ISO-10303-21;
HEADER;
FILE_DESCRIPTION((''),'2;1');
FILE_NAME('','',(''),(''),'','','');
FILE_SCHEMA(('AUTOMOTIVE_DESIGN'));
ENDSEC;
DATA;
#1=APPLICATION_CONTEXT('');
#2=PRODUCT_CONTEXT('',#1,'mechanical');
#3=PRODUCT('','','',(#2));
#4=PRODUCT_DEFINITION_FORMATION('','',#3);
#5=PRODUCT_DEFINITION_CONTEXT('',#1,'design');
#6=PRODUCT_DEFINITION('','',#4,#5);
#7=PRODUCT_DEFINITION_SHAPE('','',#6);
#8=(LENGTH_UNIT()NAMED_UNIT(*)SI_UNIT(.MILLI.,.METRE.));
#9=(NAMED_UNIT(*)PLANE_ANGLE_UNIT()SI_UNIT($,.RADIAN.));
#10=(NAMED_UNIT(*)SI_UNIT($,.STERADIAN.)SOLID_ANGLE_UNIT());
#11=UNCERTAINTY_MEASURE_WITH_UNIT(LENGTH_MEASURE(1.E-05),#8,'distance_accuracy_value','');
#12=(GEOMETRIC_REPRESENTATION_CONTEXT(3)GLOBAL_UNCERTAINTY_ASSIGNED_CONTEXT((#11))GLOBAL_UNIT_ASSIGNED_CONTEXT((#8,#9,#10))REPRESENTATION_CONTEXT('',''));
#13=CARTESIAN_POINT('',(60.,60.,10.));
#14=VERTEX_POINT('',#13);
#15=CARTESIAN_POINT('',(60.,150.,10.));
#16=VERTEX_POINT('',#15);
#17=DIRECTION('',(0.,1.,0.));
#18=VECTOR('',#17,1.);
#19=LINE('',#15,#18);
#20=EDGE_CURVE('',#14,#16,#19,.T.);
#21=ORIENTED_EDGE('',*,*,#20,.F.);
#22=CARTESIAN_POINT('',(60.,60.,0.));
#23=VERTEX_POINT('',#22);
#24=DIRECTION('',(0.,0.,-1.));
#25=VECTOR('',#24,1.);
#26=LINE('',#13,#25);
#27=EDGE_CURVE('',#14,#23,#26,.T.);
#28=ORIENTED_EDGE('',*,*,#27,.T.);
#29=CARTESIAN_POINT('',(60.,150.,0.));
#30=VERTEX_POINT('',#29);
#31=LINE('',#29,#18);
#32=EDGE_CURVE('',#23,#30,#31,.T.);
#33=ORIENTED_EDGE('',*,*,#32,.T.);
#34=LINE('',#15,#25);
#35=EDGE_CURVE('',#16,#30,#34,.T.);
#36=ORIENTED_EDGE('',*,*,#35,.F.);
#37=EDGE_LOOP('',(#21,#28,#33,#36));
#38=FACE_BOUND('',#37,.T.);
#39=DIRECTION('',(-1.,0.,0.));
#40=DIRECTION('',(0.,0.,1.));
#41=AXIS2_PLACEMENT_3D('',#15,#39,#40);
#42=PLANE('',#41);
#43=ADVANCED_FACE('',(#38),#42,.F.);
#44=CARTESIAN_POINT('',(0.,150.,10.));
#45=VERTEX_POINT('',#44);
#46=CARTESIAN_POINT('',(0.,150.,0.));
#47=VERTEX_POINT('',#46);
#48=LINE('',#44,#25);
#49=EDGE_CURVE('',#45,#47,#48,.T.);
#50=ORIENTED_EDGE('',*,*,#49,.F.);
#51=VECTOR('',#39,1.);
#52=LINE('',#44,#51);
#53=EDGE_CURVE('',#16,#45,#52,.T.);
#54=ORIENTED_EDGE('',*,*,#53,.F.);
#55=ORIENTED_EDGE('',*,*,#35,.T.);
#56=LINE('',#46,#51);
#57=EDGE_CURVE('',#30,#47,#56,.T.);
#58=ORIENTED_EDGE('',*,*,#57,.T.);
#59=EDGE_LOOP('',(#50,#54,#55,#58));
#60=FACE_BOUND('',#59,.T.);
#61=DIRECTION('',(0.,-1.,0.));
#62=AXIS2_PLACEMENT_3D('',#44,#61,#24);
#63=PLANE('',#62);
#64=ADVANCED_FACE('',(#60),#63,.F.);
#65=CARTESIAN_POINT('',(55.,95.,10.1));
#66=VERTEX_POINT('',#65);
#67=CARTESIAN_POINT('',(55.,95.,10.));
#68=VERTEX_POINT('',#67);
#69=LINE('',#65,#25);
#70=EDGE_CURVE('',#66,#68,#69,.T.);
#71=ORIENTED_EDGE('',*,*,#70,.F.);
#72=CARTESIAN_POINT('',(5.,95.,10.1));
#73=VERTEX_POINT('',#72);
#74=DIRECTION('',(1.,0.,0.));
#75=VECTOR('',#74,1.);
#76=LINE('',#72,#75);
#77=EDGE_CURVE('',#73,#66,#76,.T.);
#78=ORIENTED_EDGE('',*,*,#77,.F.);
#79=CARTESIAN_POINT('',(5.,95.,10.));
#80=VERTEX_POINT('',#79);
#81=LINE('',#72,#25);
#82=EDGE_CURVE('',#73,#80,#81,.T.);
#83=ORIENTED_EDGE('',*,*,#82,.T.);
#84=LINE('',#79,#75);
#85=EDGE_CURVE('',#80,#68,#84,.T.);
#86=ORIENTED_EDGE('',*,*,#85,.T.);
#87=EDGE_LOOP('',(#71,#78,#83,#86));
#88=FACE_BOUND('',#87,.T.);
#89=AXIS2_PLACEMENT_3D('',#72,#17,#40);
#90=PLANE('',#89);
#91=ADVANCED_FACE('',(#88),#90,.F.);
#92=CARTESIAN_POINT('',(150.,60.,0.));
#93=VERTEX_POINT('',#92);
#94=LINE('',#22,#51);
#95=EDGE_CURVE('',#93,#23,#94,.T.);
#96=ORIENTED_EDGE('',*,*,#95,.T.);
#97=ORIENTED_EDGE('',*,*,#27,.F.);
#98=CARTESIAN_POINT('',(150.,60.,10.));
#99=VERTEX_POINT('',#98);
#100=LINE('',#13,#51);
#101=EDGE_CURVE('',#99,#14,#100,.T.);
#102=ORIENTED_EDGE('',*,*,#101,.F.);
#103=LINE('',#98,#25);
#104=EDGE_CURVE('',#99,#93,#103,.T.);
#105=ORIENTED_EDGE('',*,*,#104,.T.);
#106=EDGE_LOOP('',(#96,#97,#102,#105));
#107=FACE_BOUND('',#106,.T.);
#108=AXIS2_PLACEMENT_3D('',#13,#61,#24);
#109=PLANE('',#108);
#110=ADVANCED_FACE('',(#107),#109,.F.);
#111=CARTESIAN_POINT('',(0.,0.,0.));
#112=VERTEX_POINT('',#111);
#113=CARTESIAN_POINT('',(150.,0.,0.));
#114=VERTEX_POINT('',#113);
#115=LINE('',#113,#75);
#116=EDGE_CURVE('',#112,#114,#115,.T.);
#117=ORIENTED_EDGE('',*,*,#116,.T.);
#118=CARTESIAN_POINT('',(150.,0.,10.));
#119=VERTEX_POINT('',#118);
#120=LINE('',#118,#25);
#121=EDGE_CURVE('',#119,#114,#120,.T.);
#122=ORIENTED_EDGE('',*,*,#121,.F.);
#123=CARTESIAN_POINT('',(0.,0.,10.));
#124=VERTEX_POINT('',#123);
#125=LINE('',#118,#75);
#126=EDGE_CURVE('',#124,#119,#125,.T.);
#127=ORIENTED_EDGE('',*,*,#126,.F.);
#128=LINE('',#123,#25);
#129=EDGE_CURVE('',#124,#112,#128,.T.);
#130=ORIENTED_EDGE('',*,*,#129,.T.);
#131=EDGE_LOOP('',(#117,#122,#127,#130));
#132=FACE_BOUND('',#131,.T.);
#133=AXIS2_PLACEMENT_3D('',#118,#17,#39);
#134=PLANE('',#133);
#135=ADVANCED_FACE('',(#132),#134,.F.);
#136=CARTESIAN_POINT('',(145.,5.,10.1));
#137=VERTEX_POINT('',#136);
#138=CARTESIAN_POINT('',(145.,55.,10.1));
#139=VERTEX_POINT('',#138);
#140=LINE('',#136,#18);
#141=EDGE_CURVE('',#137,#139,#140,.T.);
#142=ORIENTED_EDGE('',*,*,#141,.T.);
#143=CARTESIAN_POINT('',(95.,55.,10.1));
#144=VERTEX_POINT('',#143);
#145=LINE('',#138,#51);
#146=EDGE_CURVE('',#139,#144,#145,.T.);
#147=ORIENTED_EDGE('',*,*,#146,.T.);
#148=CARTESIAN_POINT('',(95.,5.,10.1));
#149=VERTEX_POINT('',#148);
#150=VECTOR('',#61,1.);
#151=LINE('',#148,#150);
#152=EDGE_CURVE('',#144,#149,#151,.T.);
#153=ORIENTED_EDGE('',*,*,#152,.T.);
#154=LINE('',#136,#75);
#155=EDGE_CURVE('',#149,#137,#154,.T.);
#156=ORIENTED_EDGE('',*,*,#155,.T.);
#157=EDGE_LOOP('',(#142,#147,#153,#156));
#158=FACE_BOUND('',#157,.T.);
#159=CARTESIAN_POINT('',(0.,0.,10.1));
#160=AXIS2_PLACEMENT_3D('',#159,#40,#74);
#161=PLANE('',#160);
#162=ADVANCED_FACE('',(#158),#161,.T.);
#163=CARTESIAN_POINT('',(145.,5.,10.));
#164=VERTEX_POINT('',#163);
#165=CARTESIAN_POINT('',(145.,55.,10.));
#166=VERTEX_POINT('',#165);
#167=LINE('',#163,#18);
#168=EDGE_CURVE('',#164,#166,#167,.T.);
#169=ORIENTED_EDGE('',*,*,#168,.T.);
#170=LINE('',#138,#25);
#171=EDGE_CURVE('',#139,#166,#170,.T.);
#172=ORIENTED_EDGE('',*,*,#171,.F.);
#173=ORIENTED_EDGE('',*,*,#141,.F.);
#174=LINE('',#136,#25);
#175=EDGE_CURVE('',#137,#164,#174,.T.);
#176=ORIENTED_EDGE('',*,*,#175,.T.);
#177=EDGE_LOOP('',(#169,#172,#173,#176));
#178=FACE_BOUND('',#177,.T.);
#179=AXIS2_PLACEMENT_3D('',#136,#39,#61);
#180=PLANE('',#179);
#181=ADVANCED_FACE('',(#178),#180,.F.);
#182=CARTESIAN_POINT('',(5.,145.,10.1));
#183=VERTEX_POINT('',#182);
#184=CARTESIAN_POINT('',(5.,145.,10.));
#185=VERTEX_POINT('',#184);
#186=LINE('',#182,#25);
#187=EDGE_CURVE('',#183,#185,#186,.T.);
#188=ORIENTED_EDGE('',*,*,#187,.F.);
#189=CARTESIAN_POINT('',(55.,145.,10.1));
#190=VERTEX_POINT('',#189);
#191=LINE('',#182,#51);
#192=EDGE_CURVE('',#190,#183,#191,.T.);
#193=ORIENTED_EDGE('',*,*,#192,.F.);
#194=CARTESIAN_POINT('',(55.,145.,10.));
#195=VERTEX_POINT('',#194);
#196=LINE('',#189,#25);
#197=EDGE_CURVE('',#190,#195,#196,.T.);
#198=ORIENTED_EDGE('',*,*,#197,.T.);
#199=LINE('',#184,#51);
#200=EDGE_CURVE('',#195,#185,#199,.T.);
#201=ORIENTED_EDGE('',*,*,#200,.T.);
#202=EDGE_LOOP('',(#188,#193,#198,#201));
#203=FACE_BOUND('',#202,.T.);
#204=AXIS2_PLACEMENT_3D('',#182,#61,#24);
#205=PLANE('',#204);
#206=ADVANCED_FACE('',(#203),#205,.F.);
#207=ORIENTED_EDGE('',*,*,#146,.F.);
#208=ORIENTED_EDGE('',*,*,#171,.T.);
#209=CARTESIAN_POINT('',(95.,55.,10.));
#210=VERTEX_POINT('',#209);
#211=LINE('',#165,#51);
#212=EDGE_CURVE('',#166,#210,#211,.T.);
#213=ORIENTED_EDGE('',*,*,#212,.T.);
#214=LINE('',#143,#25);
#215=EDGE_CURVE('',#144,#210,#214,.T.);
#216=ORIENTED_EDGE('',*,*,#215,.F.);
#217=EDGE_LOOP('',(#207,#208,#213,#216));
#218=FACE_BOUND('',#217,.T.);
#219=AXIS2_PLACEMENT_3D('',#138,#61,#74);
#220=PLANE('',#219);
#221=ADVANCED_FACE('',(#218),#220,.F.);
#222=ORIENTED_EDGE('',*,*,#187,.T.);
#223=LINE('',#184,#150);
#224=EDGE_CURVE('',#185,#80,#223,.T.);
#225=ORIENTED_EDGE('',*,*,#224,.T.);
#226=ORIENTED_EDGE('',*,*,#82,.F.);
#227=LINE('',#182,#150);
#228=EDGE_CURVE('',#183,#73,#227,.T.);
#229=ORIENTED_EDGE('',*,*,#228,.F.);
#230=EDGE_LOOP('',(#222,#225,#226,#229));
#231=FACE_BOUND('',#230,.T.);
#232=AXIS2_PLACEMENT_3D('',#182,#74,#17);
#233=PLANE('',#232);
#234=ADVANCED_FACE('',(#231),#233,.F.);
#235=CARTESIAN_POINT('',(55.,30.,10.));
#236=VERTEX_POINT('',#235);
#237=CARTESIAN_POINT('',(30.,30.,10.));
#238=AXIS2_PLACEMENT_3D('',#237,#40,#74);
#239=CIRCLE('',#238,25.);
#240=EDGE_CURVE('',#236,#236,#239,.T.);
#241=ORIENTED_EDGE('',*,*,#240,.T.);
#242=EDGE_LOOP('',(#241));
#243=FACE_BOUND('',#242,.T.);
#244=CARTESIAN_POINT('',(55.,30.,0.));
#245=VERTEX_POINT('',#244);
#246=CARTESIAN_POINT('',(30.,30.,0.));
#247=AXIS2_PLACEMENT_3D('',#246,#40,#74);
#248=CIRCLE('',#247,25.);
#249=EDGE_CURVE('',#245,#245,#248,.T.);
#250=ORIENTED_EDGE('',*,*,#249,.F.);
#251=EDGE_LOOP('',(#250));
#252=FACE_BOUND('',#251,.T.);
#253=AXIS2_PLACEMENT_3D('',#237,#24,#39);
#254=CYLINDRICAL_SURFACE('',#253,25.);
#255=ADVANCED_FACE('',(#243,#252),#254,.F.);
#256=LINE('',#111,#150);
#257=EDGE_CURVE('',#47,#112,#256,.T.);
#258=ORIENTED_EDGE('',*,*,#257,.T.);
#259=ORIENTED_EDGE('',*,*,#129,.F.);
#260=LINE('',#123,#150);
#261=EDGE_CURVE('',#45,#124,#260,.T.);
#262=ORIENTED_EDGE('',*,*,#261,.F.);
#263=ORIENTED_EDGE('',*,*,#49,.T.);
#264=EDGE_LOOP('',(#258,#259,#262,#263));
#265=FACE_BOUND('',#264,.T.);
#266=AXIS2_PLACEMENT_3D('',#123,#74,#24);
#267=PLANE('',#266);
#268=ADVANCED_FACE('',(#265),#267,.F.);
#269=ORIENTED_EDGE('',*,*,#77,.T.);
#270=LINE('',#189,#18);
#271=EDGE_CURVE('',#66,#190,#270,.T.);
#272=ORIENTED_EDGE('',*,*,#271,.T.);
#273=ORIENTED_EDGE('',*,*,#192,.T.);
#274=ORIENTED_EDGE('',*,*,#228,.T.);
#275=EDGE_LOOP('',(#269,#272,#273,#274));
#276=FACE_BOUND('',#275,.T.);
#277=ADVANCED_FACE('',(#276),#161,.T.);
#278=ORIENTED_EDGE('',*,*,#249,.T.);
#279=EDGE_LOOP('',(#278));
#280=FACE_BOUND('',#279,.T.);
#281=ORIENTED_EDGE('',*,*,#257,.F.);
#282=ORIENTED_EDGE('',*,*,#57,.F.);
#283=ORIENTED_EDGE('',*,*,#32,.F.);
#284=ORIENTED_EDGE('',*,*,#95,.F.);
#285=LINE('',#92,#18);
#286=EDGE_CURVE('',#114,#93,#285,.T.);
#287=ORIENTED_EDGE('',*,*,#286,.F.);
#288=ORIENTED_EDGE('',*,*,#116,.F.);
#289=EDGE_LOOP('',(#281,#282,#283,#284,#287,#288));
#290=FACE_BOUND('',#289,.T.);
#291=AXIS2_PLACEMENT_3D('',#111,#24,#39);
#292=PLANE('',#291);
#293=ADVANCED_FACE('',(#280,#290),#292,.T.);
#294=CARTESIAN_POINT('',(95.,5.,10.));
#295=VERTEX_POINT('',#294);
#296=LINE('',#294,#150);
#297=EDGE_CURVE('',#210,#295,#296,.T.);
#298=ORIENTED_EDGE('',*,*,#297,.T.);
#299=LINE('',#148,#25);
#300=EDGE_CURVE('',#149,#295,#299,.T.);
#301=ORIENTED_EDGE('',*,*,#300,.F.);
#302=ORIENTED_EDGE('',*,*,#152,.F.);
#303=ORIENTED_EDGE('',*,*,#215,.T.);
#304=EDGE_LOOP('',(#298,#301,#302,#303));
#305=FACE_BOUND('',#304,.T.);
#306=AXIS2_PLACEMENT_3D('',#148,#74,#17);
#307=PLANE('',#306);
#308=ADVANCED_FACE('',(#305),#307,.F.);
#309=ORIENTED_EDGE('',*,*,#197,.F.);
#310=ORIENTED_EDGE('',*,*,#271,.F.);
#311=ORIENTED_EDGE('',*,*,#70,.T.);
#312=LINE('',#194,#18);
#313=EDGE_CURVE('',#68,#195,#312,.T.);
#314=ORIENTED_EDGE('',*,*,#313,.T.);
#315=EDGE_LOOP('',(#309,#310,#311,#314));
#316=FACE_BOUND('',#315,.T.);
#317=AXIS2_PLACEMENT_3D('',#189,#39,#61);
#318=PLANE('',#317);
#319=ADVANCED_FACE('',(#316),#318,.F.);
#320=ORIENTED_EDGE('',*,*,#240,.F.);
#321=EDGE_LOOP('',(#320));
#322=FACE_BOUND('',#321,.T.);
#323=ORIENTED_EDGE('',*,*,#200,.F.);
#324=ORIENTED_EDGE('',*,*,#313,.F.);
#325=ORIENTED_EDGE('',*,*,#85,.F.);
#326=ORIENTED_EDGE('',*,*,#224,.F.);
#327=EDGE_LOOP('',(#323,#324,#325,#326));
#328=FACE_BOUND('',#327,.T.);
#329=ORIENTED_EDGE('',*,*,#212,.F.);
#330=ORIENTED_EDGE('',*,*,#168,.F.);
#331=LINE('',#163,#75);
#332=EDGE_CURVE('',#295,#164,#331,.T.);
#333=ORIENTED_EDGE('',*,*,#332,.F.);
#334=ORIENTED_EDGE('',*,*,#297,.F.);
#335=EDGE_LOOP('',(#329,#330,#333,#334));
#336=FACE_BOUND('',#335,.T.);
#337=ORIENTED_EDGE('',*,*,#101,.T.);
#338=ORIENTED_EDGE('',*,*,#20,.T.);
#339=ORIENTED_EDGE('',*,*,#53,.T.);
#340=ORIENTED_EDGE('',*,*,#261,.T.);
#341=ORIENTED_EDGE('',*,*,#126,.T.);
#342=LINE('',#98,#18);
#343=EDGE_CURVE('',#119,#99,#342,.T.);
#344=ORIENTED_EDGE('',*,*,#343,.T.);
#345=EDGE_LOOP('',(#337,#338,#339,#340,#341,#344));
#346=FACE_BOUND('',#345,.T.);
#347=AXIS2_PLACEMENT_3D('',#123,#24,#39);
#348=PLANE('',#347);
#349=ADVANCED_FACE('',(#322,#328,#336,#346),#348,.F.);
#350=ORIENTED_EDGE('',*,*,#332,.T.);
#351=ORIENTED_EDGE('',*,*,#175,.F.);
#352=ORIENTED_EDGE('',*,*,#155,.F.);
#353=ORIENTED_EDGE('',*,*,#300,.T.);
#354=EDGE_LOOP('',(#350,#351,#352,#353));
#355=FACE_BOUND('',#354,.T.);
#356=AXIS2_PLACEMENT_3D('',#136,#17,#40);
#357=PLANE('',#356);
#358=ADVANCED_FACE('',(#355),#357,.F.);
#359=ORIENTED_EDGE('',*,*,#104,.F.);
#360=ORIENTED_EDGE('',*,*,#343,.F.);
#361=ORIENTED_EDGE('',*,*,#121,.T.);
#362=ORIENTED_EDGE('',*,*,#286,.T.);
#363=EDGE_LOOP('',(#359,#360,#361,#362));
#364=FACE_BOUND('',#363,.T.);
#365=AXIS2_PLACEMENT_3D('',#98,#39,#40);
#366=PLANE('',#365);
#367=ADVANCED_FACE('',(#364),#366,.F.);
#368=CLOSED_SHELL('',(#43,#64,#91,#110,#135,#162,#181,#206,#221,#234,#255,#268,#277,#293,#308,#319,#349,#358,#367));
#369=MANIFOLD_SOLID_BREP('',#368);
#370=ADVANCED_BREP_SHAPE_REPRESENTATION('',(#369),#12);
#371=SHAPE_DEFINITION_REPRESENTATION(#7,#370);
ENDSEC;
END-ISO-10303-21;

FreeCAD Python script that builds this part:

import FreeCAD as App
import Part
import Sketcher
Q = App.Units.Quantity


def add_polygon(sketch, points):
    """Adds a closed chain of lines whose ends are joined by coincident constraints."""
    first, n = sketch.GeometryCount, len(points)
    for a, b in zip(points, points[1:] + points[:1]):
        sketch.addGeometry(Part.LineSegment(App.Vector(*a, 0), App.Vector(*b, 0)), False)
    for i in range(n):
        sketch.addConstraint(Sketcher.Constraint("Coincident", first + i, 2, first + (i + 1) % n, 1))

doc = App.newDocument("Part")
params = doc.addObject("Spreadsheet::Sheet", "Params")
for row, (alias, value) in enumerate([
    ("sketch1_diameter", "50 mm"),
    ("sketch1_width", "150 mm"),
    ("sketch1_width2", "90 mm"),
    ("pad1_length", "10 mm"),
    ("sketch2_width", "50 mm"),
    ("pad2_length", "0.1 mm"),
], start=1):
    params.set(f"A{row}", alias)
    params.set(f"B{row}", "=" + value)
    params.setAlias(f"B{row}", alias)

body = doc.addObject("PartDesign::Body", "Body")

# Sketch on XY plane
sketch1 = doc.addObject("Sketcher::SketchObject", "Sketch")
body.addObject(sketch1)
sketch1.AttachmentSupport = (doc.XY_Plane, [""])
sketch1.MapMode = "FlatFace"
add_polygon(sketch1, [(0, 150), (0, 0), (150, 0), (150, 60), (60, 60), (60, 150)])  # lines 0-5
sketch1.addGeometry(Part.Circle(App.Vector(30, 30, 0), App.Vector(0, 0, 1), 25), False)  # 6
sketch1.addConstraint([
    Sketcher.Constraint("Vertical", 0),
    Sketcher.Constraint("Horizontal", 1),
    Sketcher.Constraint("Vertical", 2),
    Sketcher.Constraint("Horizontal", 3),
    Sketcher.Constraint("Vertical", 4),
    Sketcher.Constraint("Horizontal", 5),
    Sketcher.Constraint("Coincident", 0, 2, -1, 1),
    Sketcher.Constraint("Equal", 1, 0),
    Sketcher.Constraint("Equal", 5, 2),
    Sketcher.Constraint("Diameter", 6, Q("50 mm")),
    Sketcher.Constraint("DistanceX", 1, 1, 1, 2, Q("150 mm")),
    Sketcher.Constraint("DistanceX", 3, 2, 3, 1, Q("90 mm")),
    Sketcher.Constraint("DistanceX", -1, 1, 6, 3, Q("30 mm")),
    Sketcher.Constraint("DistanceY", -1, 1, 6, 3, Q("30 mm")),
])
sketch1.setExpression("Constraints[15]", "Params.sketch1_diameter")
sketch1.setExpression("Constraints[16]", "Params.sketch1_width")
sketch1.setExpression("Constraints[17]", "Params.sketch1_width2")
pad1 = doc.addObject("PartDesign::Pad", "Pad")
body.addObject(pad1)
pad1.Profile = sketch1
pad1.setExpression("Length", "Params.pad1_length")

# Sketch on XY plane
sketch2 = doc.addObject("Sketcher::SketchObject", "Sketch001")
body.addObject(sketch2)
sketch2.AttachmentSupport = (doc.XY_Plane, [""])
sketch2.MapMode = "FlatFace"
sketch2.AttachmentOffset = App.Placement(App.Vector(0, 0, 10), App.Rotation())
add_polygon(sketch2, [(5, 145), (5, 95), (55, 95), (55, 145)])  # lines 0-3
add_polygon(sketch2, [(95, 55), (95, 5), (145, 5), (145, 55)])  # lines 4-7
sketch2.addConstraint([
    Sketcher.Constraint("Vertical", 0),
    Sketcher.Constraint("Horizontal", 1),
    Sketcher.Constraint("Vertical", 2),
    Sketcher.Constraint("Horizontal", 3),
    Sketcher.Constraint("Vertical", 4),
    Sketcher.Constraint("Horizontal", 5),
    Sketcher.Constraint("Vertical", 6),
    Sketcher.Constraint("Horizontal", 7),
    Sketcher.Constraint("Equal", 3, 5),
    Sketcher.Constraint("Equal", 7, 0),
    Sketcher.Constraint("Equal", 2, 4),
    Sketcher.Constraint("DistanceX", 1, 1, 1, 2, Q("50 mm")),
    Sketcher.Constraint("DistanceX", -1, 1, 0, 2, Q("5 mm")),
    Sketcher.Constraint("DistanceY", -1, 1, 0, 2, Q("95 mm")),
    Sketcher.Constraint("DistanceX", -1, 1, 4, 2, Q("95 mm")),
    Sketcher.Constraint("DistanceY", -1, 1, 4, 2, Q("5 mm")),
])
sketch2.setExpression("Constraints[19]", "Params.sketch2_width")
pad2 = doc.addObject("PartDesign::Pad", "Pad001")
body.addObject(pad2)
pad2.Profile = sketch2
pad2.setExpression("Length", "Params.pad2_length")

doc.recompute()
